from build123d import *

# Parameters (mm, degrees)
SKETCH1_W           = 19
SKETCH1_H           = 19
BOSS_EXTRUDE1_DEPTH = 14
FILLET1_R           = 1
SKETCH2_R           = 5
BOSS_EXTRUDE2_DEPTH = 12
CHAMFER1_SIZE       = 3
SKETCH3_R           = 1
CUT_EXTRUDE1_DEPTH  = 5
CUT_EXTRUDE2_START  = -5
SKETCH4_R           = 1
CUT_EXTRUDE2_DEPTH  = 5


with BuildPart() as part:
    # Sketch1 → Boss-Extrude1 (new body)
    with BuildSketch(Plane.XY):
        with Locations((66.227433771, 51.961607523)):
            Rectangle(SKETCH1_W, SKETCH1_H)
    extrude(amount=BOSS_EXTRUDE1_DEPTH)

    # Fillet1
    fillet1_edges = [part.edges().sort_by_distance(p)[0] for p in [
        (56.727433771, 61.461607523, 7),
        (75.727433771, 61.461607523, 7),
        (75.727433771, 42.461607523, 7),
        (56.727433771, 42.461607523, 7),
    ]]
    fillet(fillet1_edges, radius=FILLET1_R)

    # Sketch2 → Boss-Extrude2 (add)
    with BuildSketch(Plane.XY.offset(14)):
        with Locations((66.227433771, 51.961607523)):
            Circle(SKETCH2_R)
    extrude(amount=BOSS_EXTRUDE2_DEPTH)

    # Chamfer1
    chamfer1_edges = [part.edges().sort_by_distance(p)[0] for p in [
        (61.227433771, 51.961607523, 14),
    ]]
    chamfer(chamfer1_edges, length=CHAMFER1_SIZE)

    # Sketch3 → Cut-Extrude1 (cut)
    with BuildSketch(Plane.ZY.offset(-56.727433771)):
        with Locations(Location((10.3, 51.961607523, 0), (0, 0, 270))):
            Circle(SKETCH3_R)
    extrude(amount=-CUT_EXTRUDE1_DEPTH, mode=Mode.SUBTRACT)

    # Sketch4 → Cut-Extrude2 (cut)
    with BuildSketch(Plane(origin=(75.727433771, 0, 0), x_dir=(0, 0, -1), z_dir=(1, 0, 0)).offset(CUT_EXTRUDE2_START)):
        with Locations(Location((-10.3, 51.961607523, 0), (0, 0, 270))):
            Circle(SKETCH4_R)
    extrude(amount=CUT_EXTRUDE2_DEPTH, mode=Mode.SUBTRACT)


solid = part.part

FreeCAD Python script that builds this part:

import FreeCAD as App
import Part
import Sketcher

V = App.Vector
Q = App.Units.Quantity


def edges_at(feature, points):
    """Names of the edges that pass closest to the given points."""
    edges = feature.Shape.Edges
    near = lambda p: min(range(len(edges)), key=lambda i: edges[i].distToShape(Part.Vertex(*p))[0])
    return sorted({f"Edge{near(p) + 1}" for p in points})

doc = App.newDocument("Part")
params = doc.addObject("Spreadsheet::Sheet", "Params")
for row, (alias, value) in enumerate([
    ("sketch1_width", "19 mm"),
    ("pad1_length", "14 mm"),
    ("fillet_radius", "1 mm"),
    ("sketch2_diameter", "10 mm"),
    ("pad2_length", "12 mm"),
    ("chamfer_size", "3 mm"),
    ("sketch3_diameter", "2 mm"),
    ("pocket1_length", "5 mm"),
    ("sketch4_diameter", "2 mm"),
    ("pocket2_length", "5 mm"),
], start=1):
    params.set(f"A{row}", alias)
    params.set(f"B{row}", "=" + value)
    params.setAlias(f"B{row}", alias)

body = doc.addObject("PartDesign::Body", "Body")

# Sketch on XY plane
sketch1 = body.newObject("Sketcher::SketchObject", "Sketch")
sketch1.AttachmentSupport = (doc.getObject("XY_Plane"), [""])
sketch1.MapMode = "FlatFace"
sketch1.addGeometry(Part.LineSegment(V(56.727434, 61.461608, 0), V(56.727434, 42.461608, 0)), False)
sketch1.addGeometry(Part.LineSegment(V(56.727434, 42.461608, 0), V(75.727434, 42.461608, 0)), False)
sketch1.addGeometry(Part.LineSegment(V(75.727434, 42.461608, 0), V(75.727434, 61.461608, 0)), False)
sketch1.addGeometry(Part.LineSegment(V(75.727434, 61.461608, 0), V(56.727434, 61.461608, 0)), False)
sketch1.addConstraint(Sketcher.Constraint("Coincident", 0, 2, 1, 1))
sketch1.addConstraint(Sketcher.Constraint("Coincident", 1, 2, 2, 1))
sketch1.addConstraint(Sketcher.Constraint("Coincident", 2, 2, 3, 1))
sketch1.addConstraint(Sketcher.Constraint("Coincident", 3, 2, 0, 1))
sketch1.addConstraint(Sketcher.Constraint("Vertical", 0))
sketch1.addConstraint(Sketcher.Constraint("Horizontal", 1))
sketch1.addConstraint(Sketcher.Constraint("Vertical", 2))
sketch1.addConstraint(Sketcher.Constraint("Horizontal", 3))
sketch1.addConstraint(Sketcher.Constraint("Equal", 3, 0))
sketch1.addConstraint(Sketcher.Constraint("DistanceX", 1, 1, 1, 2, Q("19 mm")))
sketch1.addConstraint(Sketcher.Constraint("DistanceX", -1, 1, 0, 2, Q("56.727434 mm")))
sketch1.addConstraint(Sketcher.Constraint("DistanceY", -1, 1, 0, 2, Q("42.461608 mm")))
sketch1.setExpression("Constraints[9]", "Params.sketch1_width")
pad1 = body.newObject("PartDesign::Pad", "Pad")
pad1.Profile = sketch1
pad1.setExpression("Length", "Params.pad1_length")
doc.recompute()

fillet = body.newObject("PartDesign::Fillet", "Fillet")
fillet.Base = (pad1, edges_at(pad1, [
    (56.727, 61.462, 7),
    (75.727, 61.462, 7),
    (75.727, 42.462, 7),
    (56.727, 42.462, 7),
]))
fillet.setExpression("Radius", "Params.fillet_radius")

# Sketch on XY plane
sketch2 = body.newObject("Sketcher::SketchObject", "Sketch001")
sketch2.AttachmentSupport = (doc.getObject("XY_Plane"), [""])
sketch2.MapMode = "FlatFace"
sketch2.AttachmentOffset = App.Placement(V(0, 0, 14), App.Rotation())
sketch2.addGeometry(Part.Circle(V(66.227434, 51.961608, 0), V(0, 0, 1), 5), False)
sketch2.addConstraint(Sketcher.Constraint("Diameter", 0, Q("10 mm")))
sketch2.addConstraint(Sketcher.Constraint("DistanceX", -1, 1, 0, 3, Q("66.227434 mm")))
sketch2.addConstraint(Sketcher.Constraint("DistanceY", -1, 1, 0, 3, Q("51.961608 mm")))
sketch2.setExpression("Constraints[0]", "Params.sketch2_diameter")
pad2 = body.newObject("PartDesign::Pad", "Pad001")
pad2.Profile = sketch2
pad2.setExpression("Length", "Params.pad2_length")
doc.recompute()

chamfer = body.newObject("PartDesign::Chamfer", "Chamfer")
chamfer.Base = (pad2, edges_at(pad2, [(61.227, 51.962, 14)]))
chamfer.setExpression("Size", "Params.chamfer_size")

# Sketch on YZ plane
sketch3 = body.newObject("Sketcher::SketchObject", "Sketch002")
sketch3.AttachmentSupport = (doc.getObject("YZ_Plane"), [""])
sketch3.MapMode = "FlatFace"
sketch3.AttachmentOffset = App.Placement(V(0, 0, 56.727434), App.Rotation())
sketch3.addGeometry(Part.Circle(V(51.961608, 10.3, 0), V(0, 0, 1), 1), False)
sketch3.addConstraint(Sketcher.Constraint("Diameter", 0, Q("2 mm")))
sketch3.addConstraint(Sketcher.Constraint("DistanceY", -1, 1, 0, 3, Q("10.3 mm")))
sketch3.addConstraint(Sketcher.Constraint("DistanceX", -1, 1, 0, 3, Q("51.961608 mm")))
sketch3.setExpression("Constraints[0]", "Params.sketch3_diameter")
pocket1 = body.newObject("PartDesign::Pocket", "Pocket")
pocket1.Profile = sketch3
pocket1.setExpression("Length", "Params.pocket1_length")
pocket1.Reversed = True

# Sketch on YZ plane
sketch4 = body.newObject("Sketcher::SketchObject", "Sketch003")
sketch4.AttachmentSupport = (doc.getObject("YZ_Plane"), [""])
sketch4.MapMode = "FlatFace"
sketch4.AttachmentOffset = App.Placement(V(0, 0, 70.727434), App.Rotation())
sketch4.addGeometry(Part.Circle(V(51.961608, 10.3, 0), V(0, 0, 1), 1), False)
sketch4.addConstraint(Sketcher.Constraint("Diameter", 0, Q("2 mm")))
sketch4.addConstraint(Sketcher.Constraint("DistanceY", -1, 1, 0, 3, Q("10.3 mm")))
sketch4.addConstraint(Sketcher.Constraint("DistanceX", -1, 1, 0, 3, Q("51.961608 mm")))
sketch4.setExpression("Constraints[0]", "Params.sketch4_diameter")
pocket2 = body.newObject("PartDesign::Pocket", "Pocket001")
pocket2.Profile = sketch4
pocket2.setExpression("Length", "Params.pocket2_length")
pocket2.Reversed = True

doc.recompute()
